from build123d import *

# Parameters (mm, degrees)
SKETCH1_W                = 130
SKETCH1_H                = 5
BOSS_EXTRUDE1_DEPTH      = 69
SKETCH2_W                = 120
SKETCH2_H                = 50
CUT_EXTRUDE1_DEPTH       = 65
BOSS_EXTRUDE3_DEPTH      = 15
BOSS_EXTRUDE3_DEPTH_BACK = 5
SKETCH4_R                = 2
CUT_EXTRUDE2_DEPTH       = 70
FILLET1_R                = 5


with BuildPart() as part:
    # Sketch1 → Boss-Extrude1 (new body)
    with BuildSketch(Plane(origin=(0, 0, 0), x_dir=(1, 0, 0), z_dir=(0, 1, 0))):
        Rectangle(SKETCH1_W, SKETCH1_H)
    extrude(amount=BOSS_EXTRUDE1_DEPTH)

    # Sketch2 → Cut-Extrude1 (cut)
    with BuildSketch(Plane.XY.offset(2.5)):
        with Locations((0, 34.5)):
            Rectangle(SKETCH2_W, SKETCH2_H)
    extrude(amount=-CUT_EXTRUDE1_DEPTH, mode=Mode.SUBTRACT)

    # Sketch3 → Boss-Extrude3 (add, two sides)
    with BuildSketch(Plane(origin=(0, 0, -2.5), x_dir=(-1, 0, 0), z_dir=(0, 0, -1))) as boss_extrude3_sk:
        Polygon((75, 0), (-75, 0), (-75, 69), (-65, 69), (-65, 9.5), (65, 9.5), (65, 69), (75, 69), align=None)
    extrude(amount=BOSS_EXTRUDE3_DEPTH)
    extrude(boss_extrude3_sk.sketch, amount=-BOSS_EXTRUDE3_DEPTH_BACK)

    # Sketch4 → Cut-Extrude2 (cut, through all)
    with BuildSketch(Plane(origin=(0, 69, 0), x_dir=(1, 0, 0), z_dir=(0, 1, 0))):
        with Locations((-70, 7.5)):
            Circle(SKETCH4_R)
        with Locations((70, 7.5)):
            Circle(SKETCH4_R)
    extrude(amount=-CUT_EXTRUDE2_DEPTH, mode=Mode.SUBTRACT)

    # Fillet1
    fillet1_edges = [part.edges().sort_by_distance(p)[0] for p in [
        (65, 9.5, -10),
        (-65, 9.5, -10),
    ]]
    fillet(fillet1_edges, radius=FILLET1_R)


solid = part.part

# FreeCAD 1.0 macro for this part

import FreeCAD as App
import Part
import Sketcher
Q = App.Units.Quantity


def edges_at(feature, points):
    """Names of the edges that pass closest to the given points."""
    edges = feature.Shape.Edges
    near = lambda p: min(range(len(edges)), key=lambda i: edges[i].distToShape(Part.Vertex(*p))[0])
    return sorted({f"Edge{near(p) + 1}" for p in points})

doc = App.newDocument("Part")
body = doc.addObject("PartDesign::Body", "Body")

# Sketch on XZ plane
sketch1 = body.newObject("Sketcher::SketchObject", "Sketch")
sketch1.AttachmentSupport = (doc.getObject("XZ_Plane"), [""])
sketch1.MapMode = "FlatFace"
sketch1.addGeometry([
    Part.LineSegment(App.Vector(-65, -2, 0), App.Vector(-65, 2, 0)),
    Part.LineSegment(App.Vector(-65, 2, 0), App.Vector(65, 2, 0)),
    Part.LineSegment(App.Vector(65, 2, 0), App.Vector(65, -2, 0)),
    Part.LineSegment(App.Vector(65, -2, 0), App.Vector(-65, -2, 0)),
], False)
sketch1.addConstraint([
    Sketcher.Constraint("Coincident", 0, 2, 1, 1),
    Sketcher.Constraint("Coincident", 1, 2, 2, 1),
    Sketcher.Constraint("Coincident", 2, 2, 3, 1),
    Sketcher.Constraint("Coincident", 3, 2, 0, 1),
    Sketcher.Constraint("Vertical", 0),
    Sketcher.Constraint("Horizontal", 1),
    Sketcher.Constraint("Vertical", 2),
    Sketcher.Constraint("Horizontal", 3),
    Sketcher.Constraint("Symmetric", 0, 2, 2, 2, -1, 1),
    Sketcher.Constraint("DistanceX", 1, 1, 1, 2, Q("130 mm")),
    Sketcher.Constraint("DistanceY", 0, 1, 0, 2, Q("5 mm")),
])
pad1 = body.newObject("PartDesign::Pad", "Pad")
pad1.Profile = sketch1
pad1.Length = 69
pad1.Reversed = True

# Sketch on XY plane
sketch2 = body.newObject("Sketcher::SketchObject", "Sketch001")
sketch2.AttachmentSupport = (doc.getObject("XY_Plane"), [""])
sketch2.MapMode = "FlatFace"
sketch2.AttachmentOffset = App.Placement(App.Vector(0, 0, 2.5), App.Rotation())
sketch2.addGeometry([
    Part.LineSegment(App.Vector(-60, 60, 0), App.Vector(-60, 10, 0)),
    Part.LineSegment(App.Vector(-60, 10, 0), App.Vector(60, 10, 0)),
    Part.LineSegment(App.Vector(60, 10, 0), App.Vector(60, 60, 0)),
    Part.LineSegment(App.Vector(60, 60, 0), App.Vector(-60, 60, 0)),
], False)
sketch2.addConstraint([
    Sketcher.Constraint("Coincident", 0, 2, 1, 1),
    Sketcher.Constraint("Coincident", 1, 2, 2, 1),
    Sketcher.Constraint("Coincident", 2, 2, 3, 1),
    Sketcher.Constraint("Coincident", 3, 2, 0, 1),
    Sketcher.Constraint("Vertical", 0),
    Sketcher.Constraint("Horizontal", 1),
    Sketcher.Constraint("Vertical", 2),
    Sketcher.Constraint("Horizontal", 3),
    Sketcher.Constraint("DistanceX", 1, 1, 1, 2, Q("120 mm")),
    Sketcher.Constraint("DistanceY", 0, 2, 0, 1, Q("50 mm")),
    Sketcher.Constraint("DistanceX", 0, 2, -1, 1, Q("60 mm")),
    Sketcher.Constraint("DistanceY", -1, 1, 0, 2, Q("9.5 mm")),
])
pocket1 = body.newObject("PartDesign::Pocket", "Pocket")
pocket1.Profile = sketch2
pocket1.Length = 65

# Sketch on XY plane
sketch3 = body.newObject("Sketcher::SketchObject", "Sketch002")
sketch3.AttachmentSupport = (doc.getObject("XY_Plane"), [""])
sketch3.MapMode = "FlatFace"
sketch3.AttachmentOffset = App.Placement(App.Vector(0, 0, -2.5), App.Rotation())
sketch3.addGeometry([
    Part.LineSegment(App.Vector(75, 0, 0), App.Vector(-75, 0, 0)),  # 0
    Part.LineSegment(App.Vector(-75, 0, 0), App.Vector(-75, 69, 0)),  # 1
    Part.LineSegment(App.Vector(-75, 69, 0), App.Vector(-65, 69, 0)),  # 2
    Part.LineSegment(App.Vector(-65, 69, 0), App.Vector(-65, 10, 0)),  # 3
    Part.LineSegment(App.Vector(-65, 10, 0), App.Vector(65, 10, 0)),  # 4
    Part.LineSegment(App.Vector(65, 10, 0), App.Vector(65, 69, 0)),  # 5
    Part.LineSegment(App.Vector(65, 69, 0), App.Vector(75, 69, 0)),  # 6
    Part.LineSegment(App.Vector(75, 69, 0), App.Vector(75, 0, 0)),  # 7
], False)
sketch3.addConstraint([
    Sketcher.Constraint("Coincident", 0, 2, 1, 1),
    Sketcher.Constraint("Coincident", 1, 2, 2, 1),
    Sketcher.Constraint("Coincident", 2, 2, 3, 1),
    Sketcher.Constraint("Coincident", 3, 2, 4, 1),
    Sketcher.Constraint("Coincident", 4, 2, 5, 1),
    Sketcher.Constraint("Coincident", 5, 2, 6, 1),
    Sketcher.Constraint("Coincident", 6, 2, 7, 1),
    Sketcher.Constraint("Coincident", 7, 2, 0, 1),
    Sketcher.Constraint("Horizontal", 0),
    Sketcher.Constraint("Vertical", 1),
    Sketcher.Constraint("Horizontal", 2),
    Sketcher.Constraint("Vertical", 3),
    Sketcher.Constraint("Horizontal", 4),
    Sketcher.Constraint("Vertical", 5),
    Sketcher.Constraint("Horizontal", 6),
    Sketcher.Constraint("Vertical", 7),
    Sketcher.Constraint("Symmetric", 0, 2, 7, 2, -1, 1),
    Sketcher.Constraint("Symmetric", 2, 2, 5, 2, -2),
    Sketcher.Constraint("DistanceX", 0, 2, 0, 1, Q("150 mm")),
    Sketcher.Constraint("DistanceX", 2, 1, 2, 2, Q("10 mm")),
    Sketcher.Constraint("DistanceY", 1, 1, 1, 2, Q("69 mm")),
    Sketcher.Constraint("DistanceY", 3, 2, 3, 1, Q("59.5 mm")),
])
pad2 = body.newObject("PartDesign::Pad", "Pad001")
pad2.Profile = sketch3
pad2.Type = "TwoLengths"
pad2.Length = 15
pad2.Length2 = 5
pad2.Reversed = True

# Sketch on XZ plane
sketch4 = body.newObject("Sketcher::SketchObject", "Sketch003")
sketch4.AttachmentSupport = (doc.getObject("XZ_Plane"), [""])
sketch4.MapMode = "FlatFace"
sketch4.AttachmentOffset = App.Placement(App.Vector(0, 0, -69), App.Rotation())
sketch4.addGeometry([
    Part.Circle(App.Vector(-70, -7.5, 0), App.Vector(0, 0, 1), 2),
    Part.Circle(App.Vector(70, -7.5, 0), App.Vector(0, 0, 1), 2),
], False)
sketch4.addConstraint([
    Sketcher.Constraint("Equal", 0, 1),
    Sketcher.Constraint("Symmetric", 0, 3, 1, 3, -2),
    Sketcher.Constraint("Diameter", 0, Q("4 mm")),
    Sketcher.Constraint("DistanceX", 0, 3, -1, 1, Q("70 mm")),
    Sketcher.Constraint("DistanceY", 0, 3, -1, 1, Q("7.5 mm")),
])
pocket2 = body.newObject("PartDesign::Pocket", "Pocket001")
pocket2.Profile = sketch4
pocket2.Type = "ThroughAll"
pocket2.Reversed = True
doc.recompute()

fillet = body.newObject("PartDesign::Fillet", "Fillet")
fillet.Base = (pocket2, edges_at(pocket2, [(65, 9.5, -10), (-65, 9.5, -10)]))
fillet.Radius = 5

doc.recompute()
